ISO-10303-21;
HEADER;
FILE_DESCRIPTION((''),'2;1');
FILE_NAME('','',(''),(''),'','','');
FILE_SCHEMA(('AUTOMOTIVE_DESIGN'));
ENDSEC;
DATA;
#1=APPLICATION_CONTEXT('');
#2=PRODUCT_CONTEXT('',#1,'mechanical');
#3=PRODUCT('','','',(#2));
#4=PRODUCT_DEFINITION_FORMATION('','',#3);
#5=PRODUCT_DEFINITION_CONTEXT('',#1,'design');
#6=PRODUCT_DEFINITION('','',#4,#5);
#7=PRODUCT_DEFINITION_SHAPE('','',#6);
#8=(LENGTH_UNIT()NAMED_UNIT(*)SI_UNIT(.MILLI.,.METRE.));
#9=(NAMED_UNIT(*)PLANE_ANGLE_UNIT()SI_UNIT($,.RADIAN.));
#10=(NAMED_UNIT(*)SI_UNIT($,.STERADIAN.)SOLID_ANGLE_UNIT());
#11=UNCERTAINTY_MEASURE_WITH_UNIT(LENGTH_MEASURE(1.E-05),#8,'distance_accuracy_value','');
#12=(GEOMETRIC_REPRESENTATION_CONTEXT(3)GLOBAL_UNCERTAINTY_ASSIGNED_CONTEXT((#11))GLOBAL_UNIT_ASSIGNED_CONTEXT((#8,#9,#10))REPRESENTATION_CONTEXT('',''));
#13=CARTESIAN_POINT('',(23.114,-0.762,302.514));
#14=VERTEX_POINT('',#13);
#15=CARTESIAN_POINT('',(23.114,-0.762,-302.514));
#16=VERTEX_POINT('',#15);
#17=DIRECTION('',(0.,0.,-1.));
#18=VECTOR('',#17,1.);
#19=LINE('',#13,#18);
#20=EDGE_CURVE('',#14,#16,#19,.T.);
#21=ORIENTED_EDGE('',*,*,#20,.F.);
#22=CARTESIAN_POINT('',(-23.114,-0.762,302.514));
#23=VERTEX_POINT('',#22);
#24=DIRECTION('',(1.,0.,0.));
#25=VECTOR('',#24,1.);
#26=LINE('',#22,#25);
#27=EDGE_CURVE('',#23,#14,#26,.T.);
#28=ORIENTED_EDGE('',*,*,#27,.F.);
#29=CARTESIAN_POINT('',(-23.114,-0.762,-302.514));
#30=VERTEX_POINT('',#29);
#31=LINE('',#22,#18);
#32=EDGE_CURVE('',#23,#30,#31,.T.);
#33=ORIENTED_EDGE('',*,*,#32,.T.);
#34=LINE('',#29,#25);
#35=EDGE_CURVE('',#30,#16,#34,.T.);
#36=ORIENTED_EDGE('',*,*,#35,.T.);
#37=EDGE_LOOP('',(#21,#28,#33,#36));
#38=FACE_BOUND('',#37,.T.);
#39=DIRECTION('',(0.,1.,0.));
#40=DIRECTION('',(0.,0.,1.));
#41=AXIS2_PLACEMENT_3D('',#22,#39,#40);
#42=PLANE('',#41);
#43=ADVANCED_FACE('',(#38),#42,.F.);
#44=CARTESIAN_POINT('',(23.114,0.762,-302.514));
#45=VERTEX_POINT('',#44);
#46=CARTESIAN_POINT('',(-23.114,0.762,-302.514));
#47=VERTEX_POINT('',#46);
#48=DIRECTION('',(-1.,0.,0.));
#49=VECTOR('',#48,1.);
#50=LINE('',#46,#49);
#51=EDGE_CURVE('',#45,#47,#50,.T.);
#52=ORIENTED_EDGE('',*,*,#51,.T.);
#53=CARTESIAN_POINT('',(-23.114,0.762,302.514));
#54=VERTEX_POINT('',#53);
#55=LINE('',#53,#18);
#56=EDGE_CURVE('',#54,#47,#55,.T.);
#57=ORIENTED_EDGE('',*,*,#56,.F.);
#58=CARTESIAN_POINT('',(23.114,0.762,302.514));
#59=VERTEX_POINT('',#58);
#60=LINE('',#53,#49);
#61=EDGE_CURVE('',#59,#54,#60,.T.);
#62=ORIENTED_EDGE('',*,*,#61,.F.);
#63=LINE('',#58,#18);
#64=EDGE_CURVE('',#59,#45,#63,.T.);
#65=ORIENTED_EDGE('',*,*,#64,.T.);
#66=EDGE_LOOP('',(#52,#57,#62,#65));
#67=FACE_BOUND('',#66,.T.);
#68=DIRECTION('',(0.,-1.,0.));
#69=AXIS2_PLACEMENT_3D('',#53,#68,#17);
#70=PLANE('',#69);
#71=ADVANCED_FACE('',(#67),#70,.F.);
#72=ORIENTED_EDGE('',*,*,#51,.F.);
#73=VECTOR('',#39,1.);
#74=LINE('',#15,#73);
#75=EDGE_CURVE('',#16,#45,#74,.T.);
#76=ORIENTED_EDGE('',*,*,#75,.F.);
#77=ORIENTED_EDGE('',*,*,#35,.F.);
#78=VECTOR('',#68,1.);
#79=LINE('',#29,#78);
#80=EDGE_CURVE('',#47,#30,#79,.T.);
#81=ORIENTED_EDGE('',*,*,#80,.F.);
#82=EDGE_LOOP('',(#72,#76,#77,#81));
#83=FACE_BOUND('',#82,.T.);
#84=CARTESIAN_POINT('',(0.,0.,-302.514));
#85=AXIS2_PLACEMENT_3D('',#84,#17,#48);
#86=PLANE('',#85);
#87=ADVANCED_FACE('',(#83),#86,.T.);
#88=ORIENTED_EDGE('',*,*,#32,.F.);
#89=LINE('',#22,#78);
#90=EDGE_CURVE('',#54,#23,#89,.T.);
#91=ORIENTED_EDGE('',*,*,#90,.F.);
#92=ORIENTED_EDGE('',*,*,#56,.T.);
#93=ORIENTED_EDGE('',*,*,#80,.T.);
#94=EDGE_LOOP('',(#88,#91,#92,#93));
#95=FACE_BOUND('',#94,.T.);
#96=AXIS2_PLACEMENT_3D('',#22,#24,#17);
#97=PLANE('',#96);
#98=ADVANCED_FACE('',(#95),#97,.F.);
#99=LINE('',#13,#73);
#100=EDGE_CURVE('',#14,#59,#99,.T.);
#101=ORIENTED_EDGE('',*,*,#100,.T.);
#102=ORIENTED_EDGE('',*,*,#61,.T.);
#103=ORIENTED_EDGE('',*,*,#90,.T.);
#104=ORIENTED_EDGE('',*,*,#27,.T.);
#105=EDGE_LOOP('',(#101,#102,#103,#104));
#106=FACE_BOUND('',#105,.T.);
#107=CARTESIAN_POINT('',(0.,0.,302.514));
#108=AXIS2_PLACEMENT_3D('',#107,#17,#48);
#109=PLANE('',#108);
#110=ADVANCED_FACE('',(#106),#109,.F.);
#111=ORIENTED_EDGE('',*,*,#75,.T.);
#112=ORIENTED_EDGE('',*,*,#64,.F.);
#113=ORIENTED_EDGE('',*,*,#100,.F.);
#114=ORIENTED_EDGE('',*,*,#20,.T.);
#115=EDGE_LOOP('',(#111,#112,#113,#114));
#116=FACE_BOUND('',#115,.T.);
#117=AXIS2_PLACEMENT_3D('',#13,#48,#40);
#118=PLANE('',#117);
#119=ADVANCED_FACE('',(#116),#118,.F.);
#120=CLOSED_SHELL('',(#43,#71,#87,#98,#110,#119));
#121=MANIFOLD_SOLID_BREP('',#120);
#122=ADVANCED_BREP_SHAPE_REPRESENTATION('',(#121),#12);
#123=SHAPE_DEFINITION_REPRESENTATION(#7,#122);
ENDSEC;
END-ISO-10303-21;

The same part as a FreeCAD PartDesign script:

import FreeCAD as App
import Part
import Sketcher
Q = App.Units.Quantity

doc = App.newDocument("Part")
body = doc.addObject("PartDesign::Body", "Body")

# Sketch on XY plane
sketch1 = body.newObject("Sketcher::SketchObject", "Sketch")
sketch1.AttachmentSupport = (doc.getObject("XY_Plane"), [""])
sketch1.MapMode = "FlatFace"
sketch1.addGeometry(Part.LineSegment(App.Vector(-23.1, 0.8, 0), App.Vector(-23.1, -0.8, 0)), False)
sketch1.addGeometry(Part.LineSegment(App.Vector(-23.1, -0.8, 0), App.Vector(23.1, -0.8, 0)), False)
sketch1.addGeometry(Part.LineSegment(App.Vector(23.1, -0.8, 0), App.Vector(23.1, 0.8, 0)), False)
sketch1.addGeometry(Part.LineSegment(App.Vector(23.1, 0.8, 0), App.Vector(-23.1, 0.8, 0)), False)
sketch1.addConstraint(Sketcher.Constraint("Coincident", 0, 2, 1, 1))
sketch1.addConstraint(Sketcher.Constraint("Coincident", 1, 2, 2, 1))
sketch1.addConstraint(Sketcher.Constraint("Coincident", 2, 2, 3, 1))
sketch1.addConstraint(Sketcher.Constraint("Coincident", 3, 2, 0, 1))
sketch1.addConstraint(Sketcher.Constraint("Vertical", 0))
sketch1.addConstraint(Sketcher.Constraint("Horizontal", 1))
sketch1.addConstraint(Sketcher.Constraint("Vertical", 2))
sketch1.addConstraint(Sketcher.Constraint("Horizontal", 3))
sketch1.addConstraint(Sketcher.Constraint("Symmetric", 0, 2, 2, 2, -1, 1))
sketch1.addConstraint(Sketcher.Constraint("DistanceX", 1, 1, 1, 2, Q("1.82 in")))
sketch1.addConstraint(Sketcher.Constraint("DistanceY", 0, 2, 0, 1, Q("0.06 in")))
pad1 = body.newObject("PartDesign::Pad", "Pad")
pad1.Profile = sketch1
pad1.Length = Q("23.82 in")
pad1.Midplane = True

doc.recompute()
